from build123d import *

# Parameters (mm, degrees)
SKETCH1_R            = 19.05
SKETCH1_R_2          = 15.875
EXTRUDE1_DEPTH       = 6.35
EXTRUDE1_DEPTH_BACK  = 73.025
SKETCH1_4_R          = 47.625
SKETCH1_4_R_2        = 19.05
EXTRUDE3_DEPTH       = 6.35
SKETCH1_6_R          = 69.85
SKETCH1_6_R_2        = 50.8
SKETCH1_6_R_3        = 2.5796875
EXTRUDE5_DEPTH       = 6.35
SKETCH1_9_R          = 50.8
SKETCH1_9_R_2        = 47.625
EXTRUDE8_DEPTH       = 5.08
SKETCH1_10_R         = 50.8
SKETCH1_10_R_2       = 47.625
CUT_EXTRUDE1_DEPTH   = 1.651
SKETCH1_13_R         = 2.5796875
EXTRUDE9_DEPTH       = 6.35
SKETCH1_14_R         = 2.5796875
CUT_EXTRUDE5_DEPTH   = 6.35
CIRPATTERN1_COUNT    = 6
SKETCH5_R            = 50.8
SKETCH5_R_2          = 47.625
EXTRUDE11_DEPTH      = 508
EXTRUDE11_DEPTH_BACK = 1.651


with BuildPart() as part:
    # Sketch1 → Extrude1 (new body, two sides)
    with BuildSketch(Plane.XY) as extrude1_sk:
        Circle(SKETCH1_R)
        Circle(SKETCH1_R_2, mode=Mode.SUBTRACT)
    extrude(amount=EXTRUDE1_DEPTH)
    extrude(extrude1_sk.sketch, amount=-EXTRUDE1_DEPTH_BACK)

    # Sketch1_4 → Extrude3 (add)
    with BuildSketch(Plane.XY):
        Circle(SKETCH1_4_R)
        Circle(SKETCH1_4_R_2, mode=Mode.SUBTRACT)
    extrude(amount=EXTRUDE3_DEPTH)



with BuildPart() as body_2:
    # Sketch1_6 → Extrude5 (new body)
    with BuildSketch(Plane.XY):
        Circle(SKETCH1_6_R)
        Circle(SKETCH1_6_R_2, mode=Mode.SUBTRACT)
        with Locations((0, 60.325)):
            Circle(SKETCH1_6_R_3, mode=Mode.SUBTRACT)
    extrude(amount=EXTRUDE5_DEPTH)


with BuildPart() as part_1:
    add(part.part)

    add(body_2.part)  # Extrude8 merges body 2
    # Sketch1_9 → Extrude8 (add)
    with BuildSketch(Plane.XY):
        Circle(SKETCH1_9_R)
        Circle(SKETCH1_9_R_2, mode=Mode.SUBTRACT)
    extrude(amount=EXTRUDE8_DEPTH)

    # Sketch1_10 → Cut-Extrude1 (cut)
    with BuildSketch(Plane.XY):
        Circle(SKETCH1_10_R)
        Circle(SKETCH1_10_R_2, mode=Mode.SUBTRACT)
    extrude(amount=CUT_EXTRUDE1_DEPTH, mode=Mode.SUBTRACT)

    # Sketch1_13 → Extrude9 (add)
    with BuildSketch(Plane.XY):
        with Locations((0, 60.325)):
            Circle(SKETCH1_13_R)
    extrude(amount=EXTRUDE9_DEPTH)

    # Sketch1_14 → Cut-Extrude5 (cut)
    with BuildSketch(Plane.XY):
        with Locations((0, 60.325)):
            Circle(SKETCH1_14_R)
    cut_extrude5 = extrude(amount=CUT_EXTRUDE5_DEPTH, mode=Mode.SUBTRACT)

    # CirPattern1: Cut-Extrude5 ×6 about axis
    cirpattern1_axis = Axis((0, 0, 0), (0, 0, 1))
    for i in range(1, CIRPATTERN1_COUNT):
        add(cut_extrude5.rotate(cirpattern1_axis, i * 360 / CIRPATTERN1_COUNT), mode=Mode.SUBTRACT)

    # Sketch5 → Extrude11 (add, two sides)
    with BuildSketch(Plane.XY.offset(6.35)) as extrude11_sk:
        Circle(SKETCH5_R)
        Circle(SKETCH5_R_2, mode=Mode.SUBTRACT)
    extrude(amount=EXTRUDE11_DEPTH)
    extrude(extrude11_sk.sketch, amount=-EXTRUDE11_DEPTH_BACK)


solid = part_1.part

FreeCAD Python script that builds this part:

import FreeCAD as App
import Part
import Sketcher
from FreeCAD import Vector
Q = App.Units.Quantity

doc = App.newDocument("Part")
body = doc.addObject("PartDesign::Body", "Body")

# Sketch on XY plane
sketch1 = body.newObject("Sketcher::SketchObject", "Sketch")
sketch1.AttachmentSupport = (doc.getObject("XY_Plane"), [""])
sketch1.MapMode = "FlatFace"
sketch1.addGeometry([
    Part.Circle(Vector(0, 0, 0), Vector(0, 0, 1), 19),
    Part.Circle(Vector(0, 0, 0), Vector(0, 0, 1), 16),
], False)
sketch1.addConstraint([
    Sketcher.Constraint("Coincident", 0, 3, -1, 1),
    Sketcher.Constraint("Coincident", 1, 3, -1, 1),
    Sketcher.Constraint("Diameter", 0, Q("1.5 in")),
    Sketcher.Constraint("Diameter", 1, Q("1.25 in")),
])
pad1 = body.newObject("PartDesign::Pad", "Pad")
pad1.Profile = sketch1
pad1.Type = "TwoLengths"
pad1.Length = Q("0.25 in")
pad1.Length2 = Q("2.875 in")

# Sketch on XY plane
sketch2 = body.newObject("Sketcher::SketchObject", "Sketch001")
sketch2.AttachmentSupport = (doc.getObject("XY_Plane"), [""])
sketch2.MapMode = "FlatFace"
sketch2.addGeometry([
    Part.Circle(Vector(0, 0, 0), Vector(0, 0, 1), 48),
    Part.Circle(Vector(0, 0, 0), Vector(0, 0, 1), 19),
], False)
sketch2.addConstraint([
    Sketcher.Constraint("Coincident", 0, 3, -1, 1),
    Sketcher.Constraint("Coincident", 1, 3, -1, 1),
    Sketcher.Constraint("Diameter", 1, Q("1.5 in")),
    Sketcher.Constraint("Diameter", 0, Q("3.75 in")),
])
pad2 = body.newObject("PartDesign::Pad", "Pad001")
pad2.Profile = sketch2
pad2.Length = Q("0.25 in")
body2 = doc.addObject("PartDesign::Body", "Body001")

# Sketch on XY plane
sketch3 = body2.newObject("Sketcher::SketchObject", "Sketch002")
sketch3.AttachmentSupport = (doc.getObject("XY_Plane001"), [""])
sketch3.MapMode = "FlatFace"
sketch3.addGeometry([
    Part.Circle(Vector(0, 0, 0), Vector(0, 0, 1), 69.8),
    Part.Circle(Vector(0, 0, 0), Vector(0, 0, 1), 50.8),
    Part.Circle(Vector(0, 60.3, 0), Vector(0, 0, 1), 2.6),
], False)
sketch3.addConstraint([
    Sketcher.Constraint("Coincident", 0, 3, -1, 1),
    Sketcher.Constraint("Coincident", 1, 3, -1, 1),
    Sketcher.Constraint("PointOnObject", 2, 3, -2),
    Sketcher.Constraint("Diameter", 1, Q("4 in")),
    Sketcher.Constraint("Diameter", 0, Q("5.5 in")),
    Sketcher.Constraint("Diameter", 2, Q("0.203125 in")),
    Sketcher.Constraint("DistanceY", -1, 1, 2, 3, Q("2.375 in")),
])
pad3 = body2.newObject("PartDesign::Pad", "Pad002")
pad3.Profile = sketch3
pad3.Length = Q("0.25 in")
body.AllowCompound = True
doc.recompute()

boolean = body.newObject("PartDesign::Boolean", "Boolean")
boolean.Type = "Fuse"
boolean.addObjects([body2])

# Sketch on XY plane
sketch4 = body.newObject("Sketcher::SketchObject", "Sketch003")
sketch4.AttachmentSupport = (doc.getObject("XY_Plane"), [""])
sketch4.MapMode = "FlatFace"
sketch4.addGeometry([
    Part.Circle(Vector(0, 0, 0), Vector(0, 0, 1), 51),
    Part.Circle(Vector(0, 0, 0), Vector(0, 0, 1), 48),
], False)
sketch4.addConstraint([
    Sketcher.Constraint("Coincident", 0, 3, -1, 1),
    Sketcher.Constraint("Coincident", 1, 3, -1, 1),
    Sketcher.Constraint("Diameter", 0, Q("4 in")),
    Sketcher.Constraint("Diameter", 1, Q("3.75 in")),
])
pad4 = body.newObject("PartDesign::Pad", "Pad003")
pad4.Profile = sketch4
pad4.Length = Q("0.2 in")

# Sketch on XY plane
sketch5 = body.newObject("Sketcher::SketchObject", "Sketch004")
sketch5.AttachmentSupport = (doc.getObject("XY_Plane"), [""])
sketch5.MapMode = "FlatFace"
sketch5.addGeometry([
    Part.Circle(Vector(0, 0, 0), Vector(0, 0, 1), 51),
    Part.Circle(Vector(0, 0, 0), Vector(0, 0, 1), 48),
], False)
sketch5.addConstraint([
    Sketcher.Constraint("Coincident", 0, 3, -1, 1),
    Sketcher.Constraint("Coincident", 1, 3, -1, 1),
    Sketcher.Constraint("Diameter", 0, Q("4 in")),
    Sketcher.Constraint("Diameter", 1, Q("3.75 in")),
])
pocket1 = body.newObject("PartDesign::Pocket", "Pocket")
pocket1.Profile = sketch5
pocket1.Length = Q("0.065 in")
pocket1.Reversed = True

# Sketch on XY plane
sketch6 = body.newObject("Sketcher::SketchObject", "Sketch005")
sketch6.AttachmentSupport = (doc.getObject("XY_Plane"), [""])
sketch6.MapMode = "FlatFace"
sketch6.addGeometry(Part.Circle(Vector(0, 60.3, 0), Vector(0, 0, 1), 2.6), False)
sketch6.addConstraint([
    Sketcher.Constraint("PointOnObject", 0, 3, -2),
    Sketcher.Constraint("Diameter", 0, Q("0.203125 in")),
    Sketcher.Constraint("DistanceY", -1, 1, 0, 3, Q("2.375 in")),
])
pad5 = body.newObject("PartDesign::Pad", "Pad004")
pad5.Profile = sketch6
pad5.Length = Q("0.25 in")

# Sketch on XY plane
sketch7 = body.newObject("Sketcher::SketchObject", "Sketch006")
sketch7.AttachmentSupport = (doc.getObject("XY_Plane"), [""])
sketch7.MapMode = "FlatFace"
sketch7.addGeometry(Part.Circle(Vector(0, 60.3, 0), Vector(0, 0, 1), 2.6), False)
sketch7.addConstraint([
    Sketcher.Constraint("PointOnObject", 0, 3, -2),
    Sketcher.Constraint("Diameter", 0, Q("0.203125 in")),
    Sketcher.Constraint("DistanceY", -1, 1, 0, 3, Q("2.375 in")),
])
pocket2 = body.newObject("PartDesign::Pocket", "Pocket001")
pocket2.Profile = sketch7
pocket2.Length = Q("0.25 in")
pocket2.Reversed = True
doc.recompute()

polarpattern = body.newObject("PartDesign::PolarPattern", "PolarPattern")
polarpattern.Originals = [pocket2]
polarpattern.Axis = (doc.getObject("Z_Axis"), [""])
polarpattern.Angle = 360
polarpattern.Occurrences = 6
body.Tip = polarpattern

# Sketch on XY plane
sketch8 = body.newObject("Sketcher::SketchObject", "Sketch007")
sketch8.AttachmentSupport = (doc.getObject("XY_Plane"), [""])
sketch8.MapMode = "FlatFace"
sketch8.AttachmentOffset = App.Placement(Vector(0, 0, 0.25 * 25.4), App.Rotation())
sketch8.addGeometry([
    Part.Circle(Vector(0, 0, 0), Vector(0, 0, 1), 51),
    Part.Circle(Vector(0, 0, 0), Vector(0, 0, 1), 48),
], False)
sketch8.addConstraint([
    Sketcher.Constraint("Coincident", 0, 3, -1, 1),
    Sketcher.Constraint("Coincident", 1, 3, -1, 1),
    Sketcher.Constraint("Diameter", 0, Q("4 in")),
    Sketcher.Constraint("Diameter", 1, Q("3.75 in")),
])
pad6 = body.newObject("PartDesign::Pad", "Pad005")
pad6.Profile = sketch8
pad6.Type = "TwoLengths"
pad6.Length = Q("20 in")
pad6.Length2 = Q("0.065 in")

doc.recompute()
